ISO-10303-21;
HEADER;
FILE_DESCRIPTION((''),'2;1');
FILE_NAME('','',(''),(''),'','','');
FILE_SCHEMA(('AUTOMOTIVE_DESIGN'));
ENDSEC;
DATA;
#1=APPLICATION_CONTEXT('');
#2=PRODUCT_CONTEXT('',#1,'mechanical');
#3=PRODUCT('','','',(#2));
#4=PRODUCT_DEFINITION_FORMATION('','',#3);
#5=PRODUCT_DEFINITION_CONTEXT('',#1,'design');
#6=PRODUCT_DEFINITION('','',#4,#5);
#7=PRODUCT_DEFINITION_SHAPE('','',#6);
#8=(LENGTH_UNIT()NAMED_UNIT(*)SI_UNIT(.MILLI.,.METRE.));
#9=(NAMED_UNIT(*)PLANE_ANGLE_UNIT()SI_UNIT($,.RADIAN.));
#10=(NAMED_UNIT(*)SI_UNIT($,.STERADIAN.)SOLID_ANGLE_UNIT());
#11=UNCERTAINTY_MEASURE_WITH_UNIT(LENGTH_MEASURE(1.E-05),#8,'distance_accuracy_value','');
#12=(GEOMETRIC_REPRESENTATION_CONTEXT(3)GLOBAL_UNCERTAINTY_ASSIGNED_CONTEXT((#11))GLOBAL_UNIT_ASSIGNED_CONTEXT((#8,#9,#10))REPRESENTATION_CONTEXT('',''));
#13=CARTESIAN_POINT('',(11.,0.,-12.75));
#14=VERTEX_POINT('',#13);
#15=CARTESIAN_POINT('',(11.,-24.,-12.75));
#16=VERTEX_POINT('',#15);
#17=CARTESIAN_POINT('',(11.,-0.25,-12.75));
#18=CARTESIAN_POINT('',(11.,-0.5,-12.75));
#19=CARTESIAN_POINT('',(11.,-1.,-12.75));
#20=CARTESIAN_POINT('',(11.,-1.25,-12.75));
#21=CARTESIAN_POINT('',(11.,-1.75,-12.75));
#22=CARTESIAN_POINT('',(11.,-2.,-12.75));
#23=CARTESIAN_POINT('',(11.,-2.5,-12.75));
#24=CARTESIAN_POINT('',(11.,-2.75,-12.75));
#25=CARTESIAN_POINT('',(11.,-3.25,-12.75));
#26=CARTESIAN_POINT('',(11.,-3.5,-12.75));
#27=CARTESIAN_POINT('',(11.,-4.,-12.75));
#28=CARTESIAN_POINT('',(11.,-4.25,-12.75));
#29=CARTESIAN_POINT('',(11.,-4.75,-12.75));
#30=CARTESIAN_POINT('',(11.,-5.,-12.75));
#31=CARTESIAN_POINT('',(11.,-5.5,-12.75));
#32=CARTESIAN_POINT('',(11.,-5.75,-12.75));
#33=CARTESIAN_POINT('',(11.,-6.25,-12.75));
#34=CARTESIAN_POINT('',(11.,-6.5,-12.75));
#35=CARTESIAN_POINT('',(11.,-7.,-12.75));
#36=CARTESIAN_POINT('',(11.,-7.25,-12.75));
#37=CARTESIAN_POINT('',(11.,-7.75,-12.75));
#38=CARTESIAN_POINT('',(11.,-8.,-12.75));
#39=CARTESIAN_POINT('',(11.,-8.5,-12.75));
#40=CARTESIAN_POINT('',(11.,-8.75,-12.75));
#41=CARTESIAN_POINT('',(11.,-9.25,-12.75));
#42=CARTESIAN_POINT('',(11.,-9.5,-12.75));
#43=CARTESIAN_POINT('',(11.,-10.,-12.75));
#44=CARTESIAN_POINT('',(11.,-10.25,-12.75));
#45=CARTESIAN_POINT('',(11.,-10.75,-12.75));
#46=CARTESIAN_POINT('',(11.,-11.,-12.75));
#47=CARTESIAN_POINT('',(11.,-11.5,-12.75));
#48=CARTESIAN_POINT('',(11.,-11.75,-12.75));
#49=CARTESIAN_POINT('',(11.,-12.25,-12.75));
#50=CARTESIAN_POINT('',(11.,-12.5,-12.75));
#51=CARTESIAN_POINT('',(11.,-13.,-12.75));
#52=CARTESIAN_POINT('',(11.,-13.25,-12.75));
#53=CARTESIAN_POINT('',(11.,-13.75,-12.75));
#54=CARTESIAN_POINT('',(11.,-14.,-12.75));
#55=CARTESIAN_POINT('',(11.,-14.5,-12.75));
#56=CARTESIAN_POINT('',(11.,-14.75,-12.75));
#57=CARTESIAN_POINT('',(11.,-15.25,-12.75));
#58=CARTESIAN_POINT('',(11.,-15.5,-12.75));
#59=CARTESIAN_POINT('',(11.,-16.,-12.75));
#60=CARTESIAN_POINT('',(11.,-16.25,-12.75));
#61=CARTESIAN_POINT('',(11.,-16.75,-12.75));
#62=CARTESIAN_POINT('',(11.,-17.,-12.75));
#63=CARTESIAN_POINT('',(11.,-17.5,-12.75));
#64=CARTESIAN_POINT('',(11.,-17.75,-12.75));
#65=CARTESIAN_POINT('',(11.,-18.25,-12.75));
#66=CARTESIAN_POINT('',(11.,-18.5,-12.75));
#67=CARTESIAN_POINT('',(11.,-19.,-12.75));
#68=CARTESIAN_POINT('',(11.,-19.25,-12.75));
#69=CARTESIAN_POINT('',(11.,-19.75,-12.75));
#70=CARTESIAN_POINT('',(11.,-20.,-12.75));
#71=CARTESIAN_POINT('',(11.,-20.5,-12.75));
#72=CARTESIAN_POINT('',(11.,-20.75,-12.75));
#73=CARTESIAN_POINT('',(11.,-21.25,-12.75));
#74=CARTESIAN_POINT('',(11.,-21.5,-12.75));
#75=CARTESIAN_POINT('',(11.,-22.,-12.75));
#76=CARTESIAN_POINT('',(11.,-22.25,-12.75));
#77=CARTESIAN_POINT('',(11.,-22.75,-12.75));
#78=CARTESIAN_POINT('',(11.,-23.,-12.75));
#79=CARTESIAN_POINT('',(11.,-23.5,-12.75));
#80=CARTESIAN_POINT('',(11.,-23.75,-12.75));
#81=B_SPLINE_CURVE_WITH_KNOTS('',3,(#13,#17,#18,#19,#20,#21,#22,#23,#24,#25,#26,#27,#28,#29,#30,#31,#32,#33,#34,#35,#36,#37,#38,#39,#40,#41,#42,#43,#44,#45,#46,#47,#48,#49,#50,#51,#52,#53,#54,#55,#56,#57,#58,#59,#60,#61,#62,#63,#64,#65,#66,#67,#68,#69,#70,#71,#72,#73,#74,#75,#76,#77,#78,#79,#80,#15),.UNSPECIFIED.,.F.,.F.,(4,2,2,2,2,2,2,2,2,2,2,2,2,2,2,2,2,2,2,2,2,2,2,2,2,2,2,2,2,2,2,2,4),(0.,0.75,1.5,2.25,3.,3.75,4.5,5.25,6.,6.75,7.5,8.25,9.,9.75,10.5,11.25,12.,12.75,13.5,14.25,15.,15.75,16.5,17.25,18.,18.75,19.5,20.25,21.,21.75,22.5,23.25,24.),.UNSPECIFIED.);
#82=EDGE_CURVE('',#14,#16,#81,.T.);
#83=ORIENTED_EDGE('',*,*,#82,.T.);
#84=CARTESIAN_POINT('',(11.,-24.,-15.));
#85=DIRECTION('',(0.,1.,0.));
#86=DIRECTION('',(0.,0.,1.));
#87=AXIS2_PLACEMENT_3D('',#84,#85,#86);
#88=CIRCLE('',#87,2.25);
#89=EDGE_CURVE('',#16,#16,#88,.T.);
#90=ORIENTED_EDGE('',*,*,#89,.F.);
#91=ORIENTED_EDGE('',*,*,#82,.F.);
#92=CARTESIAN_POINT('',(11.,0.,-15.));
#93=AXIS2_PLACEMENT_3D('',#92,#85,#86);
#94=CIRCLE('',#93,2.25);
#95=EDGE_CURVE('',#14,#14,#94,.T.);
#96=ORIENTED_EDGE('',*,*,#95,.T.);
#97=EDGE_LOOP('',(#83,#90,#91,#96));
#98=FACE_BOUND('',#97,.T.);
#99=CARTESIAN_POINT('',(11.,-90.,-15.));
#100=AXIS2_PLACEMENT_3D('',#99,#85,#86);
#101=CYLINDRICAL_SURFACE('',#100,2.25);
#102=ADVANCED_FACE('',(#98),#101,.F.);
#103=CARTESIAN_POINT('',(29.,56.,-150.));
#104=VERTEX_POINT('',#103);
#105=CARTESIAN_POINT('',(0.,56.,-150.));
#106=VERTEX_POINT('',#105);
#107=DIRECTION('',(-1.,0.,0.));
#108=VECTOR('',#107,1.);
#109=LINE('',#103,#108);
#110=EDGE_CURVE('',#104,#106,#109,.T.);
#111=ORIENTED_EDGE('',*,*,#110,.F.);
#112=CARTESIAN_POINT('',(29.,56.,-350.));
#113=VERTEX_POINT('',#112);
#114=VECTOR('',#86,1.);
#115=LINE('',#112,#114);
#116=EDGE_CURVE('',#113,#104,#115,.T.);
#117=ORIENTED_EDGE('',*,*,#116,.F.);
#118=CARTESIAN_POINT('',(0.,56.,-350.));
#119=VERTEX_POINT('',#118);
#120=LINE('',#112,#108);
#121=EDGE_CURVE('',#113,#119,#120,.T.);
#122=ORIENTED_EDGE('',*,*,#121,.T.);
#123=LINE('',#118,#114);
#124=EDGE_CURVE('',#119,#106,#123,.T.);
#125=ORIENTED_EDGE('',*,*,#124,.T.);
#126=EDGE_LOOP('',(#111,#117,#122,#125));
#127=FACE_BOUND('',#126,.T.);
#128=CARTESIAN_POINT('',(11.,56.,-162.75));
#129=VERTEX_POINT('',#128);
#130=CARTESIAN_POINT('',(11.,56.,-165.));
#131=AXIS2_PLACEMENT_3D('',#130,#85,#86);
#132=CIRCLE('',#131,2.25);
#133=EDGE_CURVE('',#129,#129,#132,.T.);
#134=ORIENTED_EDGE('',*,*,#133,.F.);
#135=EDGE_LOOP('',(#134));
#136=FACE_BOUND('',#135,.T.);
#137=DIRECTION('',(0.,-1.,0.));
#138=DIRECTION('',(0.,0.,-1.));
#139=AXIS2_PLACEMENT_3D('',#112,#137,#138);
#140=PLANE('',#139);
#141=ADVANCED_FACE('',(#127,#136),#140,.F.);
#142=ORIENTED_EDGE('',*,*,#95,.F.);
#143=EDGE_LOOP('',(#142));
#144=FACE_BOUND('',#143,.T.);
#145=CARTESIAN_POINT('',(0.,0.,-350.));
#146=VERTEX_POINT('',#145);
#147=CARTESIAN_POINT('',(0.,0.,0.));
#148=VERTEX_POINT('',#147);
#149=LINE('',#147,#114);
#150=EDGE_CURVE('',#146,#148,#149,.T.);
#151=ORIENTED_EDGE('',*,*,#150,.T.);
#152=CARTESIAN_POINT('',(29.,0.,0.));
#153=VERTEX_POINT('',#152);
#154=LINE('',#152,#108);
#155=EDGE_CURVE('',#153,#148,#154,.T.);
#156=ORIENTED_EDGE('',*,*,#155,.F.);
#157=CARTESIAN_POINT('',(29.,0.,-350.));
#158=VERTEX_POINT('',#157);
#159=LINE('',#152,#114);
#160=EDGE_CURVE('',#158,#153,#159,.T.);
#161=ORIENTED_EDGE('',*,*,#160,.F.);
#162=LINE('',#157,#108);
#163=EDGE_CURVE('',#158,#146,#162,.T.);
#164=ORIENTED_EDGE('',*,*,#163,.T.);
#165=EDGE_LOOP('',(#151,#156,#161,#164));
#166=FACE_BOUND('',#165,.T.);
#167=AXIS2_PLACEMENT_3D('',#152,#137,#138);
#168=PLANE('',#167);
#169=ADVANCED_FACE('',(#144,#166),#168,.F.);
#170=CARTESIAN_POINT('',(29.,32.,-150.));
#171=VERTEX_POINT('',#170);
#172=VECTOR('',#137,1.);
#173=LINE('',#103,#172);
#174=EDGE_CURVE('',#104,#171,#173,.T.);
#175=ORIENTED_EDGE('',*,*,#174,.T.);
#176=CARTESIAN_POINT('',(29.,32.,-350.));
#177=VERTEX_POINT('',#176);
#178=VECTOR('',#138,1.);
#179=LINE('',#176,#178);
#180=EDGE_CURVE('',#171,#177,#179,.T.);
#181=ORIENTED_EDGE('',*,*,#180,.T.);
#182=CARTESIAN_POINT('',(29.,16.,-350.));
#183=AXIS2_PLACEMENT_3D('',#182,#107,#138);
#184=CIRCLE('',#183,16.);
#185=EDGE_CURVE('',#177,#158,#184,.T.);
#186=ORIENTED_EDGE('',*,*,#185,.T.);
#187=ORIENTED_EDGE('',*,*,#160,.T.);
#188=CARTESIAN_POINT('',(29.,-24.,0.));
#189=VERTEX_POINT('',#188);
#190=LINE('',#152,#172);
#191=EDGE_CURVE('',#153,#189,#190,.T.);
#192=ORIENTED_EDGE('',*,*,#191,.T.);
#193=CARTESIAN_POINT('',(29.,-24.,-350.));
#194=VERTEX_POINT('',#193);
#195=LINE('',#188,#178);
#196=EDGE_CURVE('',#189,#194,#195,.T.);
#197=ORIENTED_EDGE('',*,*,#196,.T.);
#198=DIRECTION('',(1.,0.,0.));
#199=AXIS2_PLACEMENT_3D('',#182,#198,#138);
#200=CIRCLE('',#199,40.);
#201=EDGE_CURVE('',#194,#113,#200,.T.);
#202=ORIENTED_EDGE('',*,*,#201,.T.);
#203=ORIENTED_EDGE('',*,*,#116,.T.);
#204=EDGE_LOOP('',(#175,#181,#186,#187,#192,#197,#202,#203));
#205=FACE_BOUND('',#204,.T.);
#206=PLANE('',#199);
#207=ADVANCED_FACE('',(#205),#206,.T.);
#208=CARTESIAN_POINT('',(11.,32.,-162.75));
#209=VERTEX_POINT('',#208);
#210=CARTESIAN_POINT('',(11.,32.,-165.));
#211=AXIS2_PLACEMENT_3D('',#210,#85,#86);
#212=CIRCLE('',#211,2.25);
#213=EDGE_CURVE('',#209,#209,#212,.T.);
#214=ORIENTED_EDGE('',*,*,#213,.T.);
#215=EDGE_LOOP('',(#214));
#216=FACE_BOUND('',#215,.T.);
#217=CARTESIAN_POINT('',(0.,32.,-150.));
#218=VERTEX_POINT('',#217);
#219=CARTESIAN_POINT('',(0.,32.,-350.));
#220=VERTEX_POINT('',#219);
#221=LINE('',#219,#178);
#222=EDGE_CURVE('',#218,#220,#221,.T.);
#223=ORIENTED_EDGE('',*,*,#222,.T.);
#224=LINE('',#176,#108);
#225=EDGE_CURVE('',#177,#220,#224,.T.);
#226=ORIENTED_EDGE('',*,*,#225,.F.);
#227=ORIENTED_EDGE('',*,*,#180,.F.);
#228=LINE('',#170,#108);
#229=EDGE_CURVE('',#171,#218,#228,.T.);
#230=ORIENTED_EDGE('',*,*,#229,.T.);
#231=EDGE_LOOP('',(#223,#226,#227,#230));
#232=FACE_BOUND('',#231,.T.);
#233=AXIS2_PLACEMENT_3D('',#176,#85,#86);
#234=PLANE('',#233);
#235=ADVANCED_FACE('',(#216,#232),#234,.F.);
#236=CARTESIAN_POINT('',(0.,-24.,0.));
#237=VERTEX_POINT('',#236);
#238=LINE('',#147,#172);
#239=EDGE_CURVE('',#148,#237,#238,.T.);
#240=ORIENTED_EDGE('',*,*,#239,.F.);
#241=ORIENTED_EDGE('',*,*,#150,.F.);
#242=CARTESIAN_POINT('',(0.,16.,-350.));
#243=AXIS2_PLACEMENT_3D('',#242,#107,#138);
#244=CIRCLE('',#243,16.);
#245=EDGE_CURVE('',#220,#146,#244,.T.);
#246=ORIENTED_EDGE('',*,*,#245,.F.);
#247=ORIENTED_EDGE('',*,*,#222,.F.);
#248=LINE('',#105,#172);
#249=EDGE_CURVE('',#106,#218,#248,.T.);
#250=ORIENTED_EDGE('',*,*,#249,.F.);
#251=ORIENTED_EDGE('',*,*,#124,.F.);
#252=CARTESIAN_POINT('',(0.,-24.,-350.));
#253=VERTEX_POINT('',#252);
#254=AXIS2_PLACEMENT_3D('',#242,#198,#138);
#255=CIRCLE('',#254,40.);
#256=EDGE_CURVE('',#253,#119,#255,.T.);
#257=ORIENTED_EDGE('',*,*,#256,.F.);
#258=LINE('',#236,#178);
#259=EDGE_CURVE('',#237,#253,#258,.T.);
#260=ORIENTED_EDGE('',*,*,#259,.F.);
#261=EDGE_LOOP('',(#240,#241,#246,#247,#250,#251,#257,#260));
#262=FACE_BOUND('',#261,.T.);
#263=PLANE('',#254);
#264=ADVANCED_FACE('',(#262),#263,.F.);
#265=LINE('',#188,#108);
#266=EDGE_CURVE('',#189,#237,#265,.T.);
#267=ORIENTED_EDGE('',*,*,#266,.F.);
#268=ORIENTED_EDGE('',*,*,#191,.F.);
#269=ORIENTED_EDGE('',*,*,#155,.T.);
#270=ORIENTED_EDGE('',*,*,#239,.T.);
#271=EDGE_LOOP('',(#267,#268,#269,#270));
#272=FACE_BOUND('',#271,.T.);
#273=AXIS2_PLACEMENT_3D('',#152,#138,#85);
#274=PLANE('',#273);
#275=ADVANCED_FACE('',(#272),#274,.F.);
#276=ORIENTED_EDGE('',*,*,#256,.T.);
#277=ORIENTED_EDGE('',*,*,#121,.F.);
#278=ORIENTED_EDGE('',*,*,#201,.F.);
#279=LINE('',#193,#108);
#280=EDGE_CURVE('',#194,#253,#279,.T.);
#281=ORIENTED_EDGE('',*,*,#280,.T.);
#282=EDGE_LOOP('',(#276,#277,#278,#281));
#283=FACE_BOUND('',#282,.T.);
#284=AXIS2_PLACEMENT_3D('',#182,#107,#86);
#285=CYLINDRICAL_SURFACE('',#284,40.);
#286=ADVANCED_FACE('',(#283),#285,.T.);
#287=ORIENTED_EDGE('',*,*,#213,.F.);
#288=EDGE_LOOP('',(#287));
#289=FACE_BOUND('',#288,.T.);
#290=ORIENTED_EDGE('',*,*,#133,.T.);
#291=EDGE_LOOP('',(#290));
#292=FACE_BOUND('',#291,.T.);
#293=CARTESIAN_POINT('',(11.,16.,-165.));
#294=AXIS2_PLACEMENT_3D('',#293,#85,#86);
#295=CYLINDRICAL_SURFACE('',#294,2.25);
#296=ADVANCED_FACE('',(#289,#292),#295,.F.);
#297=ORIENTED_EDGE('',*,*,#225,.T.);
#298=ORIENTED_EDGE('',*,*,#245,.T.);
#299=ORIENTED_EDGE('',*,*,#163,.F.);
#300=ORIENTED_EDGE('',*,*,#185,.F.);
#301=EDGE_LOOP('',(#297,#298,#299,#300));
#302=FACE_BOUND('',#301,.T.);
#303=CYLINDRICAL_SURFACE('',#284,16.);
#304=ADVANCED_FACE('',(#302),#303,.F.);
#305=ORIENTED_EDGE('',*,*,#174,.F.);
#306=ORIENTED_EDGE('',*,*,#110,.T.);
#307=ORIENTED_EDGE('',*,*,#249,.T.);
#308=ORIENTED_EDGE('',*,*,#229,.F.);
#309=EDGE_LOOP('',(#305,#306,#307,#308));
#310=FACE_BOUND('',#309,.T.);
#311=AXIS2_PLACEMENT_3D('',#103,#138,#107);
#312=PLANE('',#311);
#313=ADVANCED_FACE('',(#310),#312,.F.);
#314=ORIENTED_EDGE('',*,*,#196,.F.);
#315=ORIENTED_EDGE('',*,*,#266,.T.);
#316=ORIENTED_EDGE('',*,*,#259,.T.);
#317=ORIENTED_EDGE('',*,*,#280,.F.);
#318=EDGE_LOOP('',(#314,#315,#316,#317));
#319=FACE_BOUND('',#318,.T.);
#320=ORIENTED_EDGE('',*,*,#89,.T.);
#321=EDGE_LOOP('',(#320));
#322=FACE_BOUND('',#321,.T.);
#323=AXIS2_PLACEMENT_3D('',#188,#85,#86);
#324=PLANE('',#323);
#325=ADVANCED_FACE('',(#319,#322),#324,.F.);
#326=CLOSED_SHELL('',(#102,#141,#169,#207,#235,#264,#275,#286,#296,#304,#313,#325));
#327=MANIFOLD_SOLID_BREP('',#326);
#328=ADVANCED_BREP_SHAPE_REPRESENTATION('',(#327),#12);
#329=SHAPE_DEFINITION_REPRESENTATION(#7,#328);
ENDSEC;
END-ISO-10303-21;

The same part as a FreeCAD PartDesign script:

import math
import FreeCAD as App
import Part
import Sketcher

V = App.Vector

doc = App.newDocument("Part")
params = doc.addObject("Spreadsheet::Sheet", "Params")
for row, (alias, value) in enumerate([
    ("sketch1_radius", "40 mm"),
    ("sketch1_radius2", "16 mm"),
    ("sketch1_height", "350 mm"),
    ("sketch1_height2", "200 mm"),
    ("pad1_length", "29 mm"),
    ("sketch2_diameter", "4.5 mm"),
    ("pocket1_length", "90 mm"),
    ("sketch3_diameter", "4.5 mm"),
    ("pocket2_length", "40 mm"),
], start=1):
    params.set(f"A{row}", alias)
    params.set(f"B{row}", "=" + value)
    params.setAlias(f"B{row}", alias)

body = doc.addObject("PartDesign::Body", "Body")

# Sketch on YZ plane
sketch1 = doc.addObject("Sketcher::SketchObject", "Sketch")
body.addObject(sketch1)
sketch1.AttachmentSupport = (doc.YZ_Plane, [""])
sketch1.MapMode = "FlatFace"
sketch1.addGeometry([
    Part.LineSegment(V(0, -350, 0), V(0, 0, 0)),  # 0
    Part.LineSegment(V(0, 0, 0), V(-24, 0, 0)),  # 1
    Part.LineSegment(V(-24, 0, 0), V(-24, -350, 0)),  # 2
    Part.ArcOfCircle(Part.Circle(V(16, -350, 0), V(0, 0, 1), 40), math.radians(180), math.radians(360)),  # 3
    Part.LineSegment(V(56, -350, 0), V(56, -150, 0)),  # 4
    Part.LineSegment(V(56, -150, 0), V(32, -150, 0)),  # 5
    Part.LineSegment(V(32, -150, 0), V(32, -350, 0)),  # 6
    Part.ArcOfCircle(Part.Circle(V(16, -350, 0), V(0, 0, 1), 16), math.radians(180), math.radians(360)),  # 7
], False)
sketch1.addConstraint([
    Sketcher.Constraint("Coincident", 0, 2, 1, 1),
    Sketcher.Constraint("Coincident", 1, 2, 2, 1),
    Sketcher.Constraint("Tangent", 2, 2, 3, 1),
    Sketcher.Constraint("Tangent", 3, 2, 4, 1),
    Sketcher.Constraint("Coincident", 4, 2, 5, 1),
    Sketcher.Constraint("Coincident", 5, 2, 6, 1),
    Sketcher.Constraint("Tangent", 6, 2, 7, 2),
    Sketcher.Constraint("Tangent", 7, 1, 0, 1),
    Sketcher.Constraint("Vertical", 0),
    Sketcher.Constraint("Horizontal", 1),
    Sketcher.Constraint("Vertical", 2),
    Sketcher.Constraint("Vertical", 4),
    Sketcher.Constraint("Horizontal", 5),
    Sketcher.Constraint("Vertical", 6),
    Sketcher.Constraint("Coincident", 0, 2, -1, 1),
    Sketcher.Constraint("Coincident", 7, 3, 3, 3),
    Sketcher.Constraint("Radius", 3, 40.0),
    Sketcher.Constraint("Radius", 7, 16.0),
    Sketcher.Constraint("DistanceY", 0, 1, 0, 2, 350.0),
    Sketcher.Constraint("DistanceY", 4, 1, 4, 2, 200.0),
])
sketch1.setExpression("Constraints[16]", "Params.sketch1_radius")
sketch1.setExpression("Constraints[17]", "Params.sketch1_radius2")
sketch1.setExpression("Constraints[18]", "Params.sketch1_height")
sketch1.setExpression("Constraints[19]", "Params.sketch1_height2")
pad1 = doc.addObject("PartDesign::Pad", "Pad")
body.addObject(pad1)
pad1.Profile = sketch1
pad1.setExpression("Length", "Params.pad1_length")

# Sketch on XZ plane
sketch2 = doc.addObject("Sketcher::SketchObject", "Sketch001")
body.addObject(sketch2)
sketch2.AttachmentSupport = (doc.XZ_Plane, [""])
sketch2.MapMode = "FlatFace"
sketch2.addGeometry([
    Part.Circle(V(36, -15, 0), V(0, 0, 1), 2.25),
    Part.Circle(V(11, -15, 0), V(0, 0, 1), 2.25),
], False)
sketch2.addConstraint([
    Sketcher.Constraint("Equal", 0, 1),
    Sketcher.Constraint("Horizontal", 0, 3, 1, 3),
    Sketcher.Constraint("Diameter", 0, 4.5),
    Sketcher.Constraint("DistanceX", -1, 1, 0, 3, 36.0),
    Sketcher.Constraint("DistanceY", 0, 3, -1, 1, 15.0),
    Sketcher.Constraint("DistanceX", -1, 1, 1, 3, 11.0),
])
sketch2.setExpression("Constraints[2]", "Params.sketch2_diameter")
pocket1 = doc.addObject("PartDesign::Pocket", "Pocket")
body.addObject(pocket1)
pocket1.Profile = sketch2
pocket1.setExpression("Length", "Params.pocket1_length")
pocket1.Reversed = True

# Sketch on XZ plane
sketch3 = doc.addObject("Sketcher::SketchObject", "Sketch002")
body.addObject(sketch3)
sketch3.AttachmentSupport = (doc.XZ_Plane, [""])
sketch3.MapMode = "FlatFace"
sketch3.AttachmentOffset = App.Placement(V(0, 0, -56), App.Rotation())
sketch3.addGeometry([
    Part.Circle(V(11, -165, 0), V(0, 0, 1), 2.25),
    Part.Circle(V(36, -165, 0), V(0, 0, 1), 2.25),
], False)
sketch3.addConstraint([
    Sketcher.Constraint("Equal", 0, 1),
    Sketcher.Constraint("Horizontal", 0, 3, 1, 3),
    Sketcher.Constraint("Diameter", 0, 4.5),
    Sketcher.Constraint("DistanceX", -1, 1, 0, 3, 11.0),
    Sketcher.Constraint("DistanceY", 0, 3, -1, 1, 165.0),
    Sketcher.Constraint("DistanceX", -1, 1, 1, 3, 36.0),
])
sketch3.setExpression("Constraints[2]", "Params.sketch3_diameter")
pocket2 = doc.addObject("PartDesign::Pocket", "Pocket001")
body.addObject(pocket2)
pocket2.Profile = sketch3
pocket2.setExpression("Length", "Params.pocket2_length")
pocket2.Reversed = True

doc.recompute()
